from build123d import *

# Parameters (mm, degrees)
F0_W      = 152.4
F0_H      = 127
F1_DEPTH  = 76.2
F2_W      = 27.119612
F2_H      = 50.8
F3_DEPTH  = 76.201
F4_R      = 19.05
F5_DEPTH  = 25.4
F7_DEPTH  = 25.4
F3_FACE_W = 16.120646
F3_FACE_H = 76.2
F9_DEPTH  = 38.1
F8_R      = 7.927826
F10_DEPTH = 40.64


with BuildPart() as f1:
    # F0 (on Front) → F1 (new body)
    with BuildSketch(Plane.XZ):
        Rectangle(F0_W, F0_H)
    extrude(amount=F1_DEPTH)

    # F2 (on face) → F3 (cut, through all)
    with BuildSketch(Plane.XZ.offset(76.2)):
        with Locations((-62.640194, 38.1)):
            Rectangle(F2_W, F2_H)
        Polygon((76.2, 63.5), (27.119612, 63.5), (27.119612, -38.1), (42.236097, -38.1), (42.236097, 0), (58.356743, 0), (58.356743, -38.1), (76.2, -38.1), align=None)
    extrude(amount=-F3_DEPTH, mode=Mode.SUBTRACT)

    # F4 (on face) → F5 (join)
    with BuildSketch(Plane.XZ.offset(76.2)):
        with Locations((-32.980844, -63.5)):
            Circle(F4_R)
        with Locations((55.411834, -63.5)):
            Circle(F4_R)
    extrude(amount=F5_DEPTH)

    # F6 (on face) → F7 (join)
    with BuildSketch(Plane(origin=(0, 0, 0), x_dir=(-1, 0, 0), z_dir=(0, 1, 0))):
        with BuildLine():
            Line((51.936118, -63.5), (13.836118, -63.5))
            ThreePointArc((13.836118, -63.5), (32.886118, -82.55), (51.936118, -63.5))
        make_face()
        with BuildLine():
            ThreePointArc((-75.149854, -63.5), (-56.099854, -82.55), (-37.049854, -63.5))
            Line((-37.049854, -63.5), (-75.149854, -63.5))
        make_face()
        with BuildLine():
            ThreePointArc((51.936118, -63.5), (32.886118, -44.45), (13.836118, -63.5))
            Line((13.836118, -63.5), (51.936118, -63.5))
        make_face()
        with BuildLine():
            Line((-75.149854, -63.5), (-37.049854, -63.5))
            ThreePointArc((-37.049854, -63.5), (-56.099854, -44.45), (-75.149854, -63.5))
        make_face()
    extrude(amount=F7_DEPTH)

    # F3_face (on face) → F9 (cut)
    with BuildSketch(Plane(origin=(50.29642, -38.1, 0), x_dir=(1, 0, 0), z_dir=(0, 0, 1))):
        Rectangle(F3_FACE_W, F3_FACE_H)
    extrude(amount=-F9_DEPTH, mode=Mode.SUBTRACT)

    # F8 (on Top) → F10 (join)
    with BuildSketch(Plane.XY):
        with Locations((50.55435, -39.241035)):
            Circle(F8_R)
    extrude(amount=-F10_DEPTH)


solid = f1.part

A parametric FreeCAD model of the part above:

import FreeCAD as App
import Part
import Sketcher
from FreeCAD import Vector
Q = App.Units.Quantity


def add_polygon(sketch, points):
    """Adds a closed chain of lines whose ends are joined by coincident constraints."""
    first, n = sketch.GeometryCount, len(points)
    for a, b in zip(points, points[1:] + points[:1]):
        sketch.addGeometry(Part.LineSegment(App.Vector(*a, 0), App.Vector(*b, 0)), False)
    for i in range(n):
        sketch.addConstraint(Sketcher.Constraint("Coincident", first + i, 2, first + (i + 1) % n, 1))

doc = App.newDocument("Part")
params = doc.addObject("Spreadsheet::Sheet", "Params")
for row, (alias, value) in enumerate([
    ("sketch1_width", "6 in"),
    ("sketch1_height", "5 in"),
    ("pad1_length", "3 in"),
    ("sketch2_height", "2 in"),
    ("sketch2_height2", "4 in"),
    ("sketch2_height3", "1.5 in"),
    ("sketch3_diameter", "1.5 in"),
    ("pad2_length", "1 in"),
    ("sketch4_diameter", "1.5 in"),
    ("pad3_length", "1 in"),
    ("sketch5_height", "3 in"),
    ("pocket2_length", "1.5 in"),
    ("pad4_length", "1.6 in"),
], start=1):
    params.set(f"A{row}", alias)
    params.set(f"B{row}", "=" + value)
    params.setAlias(f"B{row}", alias)

body = doc.addObject("PartDesign::Body", "Body")

sketch1 = body.newObject("Sketcher::SketchObject", "Sketch")
sketch1.AttachmentSupport = (doc.getObject("XZ_Plane"), [""])
sketch1.MapMode = "FlatFace"
add_polygon(sketch1, [(-76, 64), (-76, -64), (76, -64), (76, 64)])
sketch1.addConstraint(Sketcher.Constraint("Vertical", 0))
sketch1.addConstraint(Sketcher.Constraint("Horizontal", 1))
sketch1.addConstraint(Sketcher.Constraint("Vertical", 2))
sketch1.addConstraint(Sketcher.Constraint("Horizontal", 3))
sketch1.addConstraint(Sketcher.Constraint("Symmetric", 0, 2, 2, 2, -1, 1))
sketch1.addConstraint(Sketcher.Constraint("DistanceX", 1, 1, 1, 2, Q("6 in")))
sketch1.addConstraint(Sketcher.Constraint("DistanceY", 0, 2, 0, 1, Q("5 in")))
sketch1.setExpression("Constraints[9]", "Params.sketch1_width")
sketch1.setExpression("Constraints[10]", "Params.sketch1_height")
pad1 = body.newObject("PartDesign::Pad", "Pad")
pad1.Profile = sketch1
pad1.setExpression("Length", "Params.pad1_length")

sketch2 = body.newObject("Sketcher::SketchObject", "Sketch001")
sketch2.AttachmentSupport = (doc.getObject("XZ_Plane"), [""])
sketch2.MapMode = "FlatFace"
sketch2.AttachmentOffset = App.Placement(Vector(0, 0, 3 * 25.4), App.Rotation())
add_polygon(sketch2, [(-76, 64), (-76, 13), (-49, 13), (-49, 64)])
add_polygon(sketch2, [(76, 64), (27, 64), (27, -38), (42, -38), (42, 0), (58, 0), (58, -38), (76, -38)])
sketch2.addConstraint(Sketcher.Constraint("Vertical", 0))
sketch2.addConstraint(Sketcher.Constraint("Horizontal", 1))
sketch2.addConstraint(Sketcher.Constraint("Vertical", 2))
sketch2.addConstraint(Sketcher.Constraint("Horizontal", 3))
sketch2.addConstraint(Sketcher.Constraint("Horizontal", 4))
sketch2.addConstraint(Sketcher.Constraint("Vertical", 5))
sketch2.addConstraint(Sketcher.Constraint("Horizontal", 6))
sketch2.addConstraint(Sketcher.Constraint("Vertical", 7))
sketch2.addConstraint(Sketcher.Constraint("Horizontal", 8))
sketch2.addConstraint(Sketcher.Constraint("Vertical", 9))
sketch2.addConstraint(Sketcher.Constraint("Horizontal", 10))
sketch2.addConstraint(Sketcher.Constraint("Vertical", 11))
sketch2.addConstraint(Sketcher.Constraint("Symmetric", 3, 2, 11, 2, -2))
sketch2.addConstraint(Sketcher.Constraint("PointOnObject", 7, 2, -1))
sketch2.addConstraint(Sketcher.Constraint("Horizontal", 6, 2, 9, 2))
sketch2.addConstraint(Sketcher.Constraint("DistanceY", 0, 2, 0, 1, Q("2 in")))
sketch2.addConstraint(Sketcher.Constraint("DistanceY", 5, 2, 5, 1, Q("4 in")))
sketch2.addConstraint(Sketcher.Constraint("DistanceY", 7, 1, 7, 2, Q("1.5 in")))
sketch2.addConstraint(Sketcher.Constraint("DistanceX", 0, 2, -1, 1, Q("3 in")))
sketch2.addConstraint(Sketcher.Constraint("DistanceX", 2, 2, 4, 2, Q("3 in")))
sketch2.addConstraint(Sketcher.Constraint("DistanceX", 1, 1, 1, 2, 27.119612))
sketch2.addConstraint(Sketcher.Constraint("DistanceX", 6, 1, 6, 2, 15.116485))
sketch2.addConstraint(Sketcher.Constraint("DistanceX", 8, 1, 8, 2, 16.120646))
sketch2.setExpression("Constraints[27]", "Params.sketch2_height")
sketch2.setExpression("Constraints[28]", "Params.sketch2_height2")
sketch2.setExpression("Constraints[29]", "Params.sketch2_height3")
pocket1 = body.newObject("PartDesign::Pocket", "Pocket")
pocket1.Profile = sketch2
pocket1.Type = "ThroughAll"

sketch3 = body.newObject("Sketcher::SketchObject", "Sketch002")
sketch3.AttachmentSupport = (doc.getObject("XZ_Plane"), [""])
sketch3.MapMode = "FlatFace"
sketch3.AttachmentOffset = App.Placement(Vector(0, 0, 3 * 25.4), App.Rotation())
sketch3.addGeometry(Part.Circle(Vector(-33, -64, 0), Vector(0, 0, 1), 19), False)
sketch3.addGeometry(Part.Circle(Vector(55, -64, 0), Vector(0, 0, 1), 19), False)
sketch3.addConstraint(Sketcher.Constraint("Equal", 0, 1))
sketch3.addConstraint(Sketcher.Constraint("Horizontal", 0, 3, 1, 3))
sketch3.addConstraint(Sketcher.Constraint("Diameter", 0, Q("1.5 in")))
sketch3.addConstraint(Sketcher.Constraint("DistanceY", 0, 3, -1, 1, Q("2.5 in")))
sketch3.addConstraint(Sketcher.Constraint("DistanceX", 0, 3, -1, 1, 32.980844))
sketch3.addConstraint(Sketcher.Constraint("DistanceX", -1, 1, 1, 3, 55.411834))
sketch3.setExpression("Constraints[2]", "Params.sketch3_diameter")
pad2 = body.newObject("PartDesign::Pad", "Pad001")
pad2.Profile = sketch3
pad2.setExpression("Length", "Params.pad2_length")

sketch4 = body.newObject("Sketcher::SketchObject", "Sketch003")
sketch4.AttachmentSupport = (doc.getObject("XZ_Plane"), [""])
sketch4.MapMode = "FlatFace"
sketch4.addGeometry(Part.Circle(Vector(-33, -64, 0), Vector(0, 0, 1), 19), False)
sketch4.addGeometry(Part.Circle(Vector(56, -64, 0), Vector(0, 0, 1), 19), False)
sketch4.addConstraint(Sketcher.Constraint("Equal", 0, 1))
sketch4.addConstraint(Sketcher.Constraint("Horizontal", 0, 3, 1, 3))
sketch4.addConstraint(Sketcher.Constraint("Diameter", 0, Q("1.5 in")))
sketch4.addConstraint(Sketcher.Constraint("DistanceY", 0, 3, -1, 1, Q("2.5 in")))
sketch4.addConstraint(Sketcher.Constraint("DistanceX", 0, 3, -1, 1, 32.886118))
sketch4.addConstraint(Sketcher.Constraint("DistanceX", -1, 1, 1, 3, 56.099854))
sketch4.setExpression("Constraints[2]", "Params.sketch4_diameter")
pad3 = body.newObject("PartDesign::Pad", "Pad002")
pad3.Profile = sketch4
pad3.setExpression("Length", "Params.pad3_length")
pad3.Reversed = True

sketch5 = body.newObject("Sketcher::SketchObject", "Sketch004")
sketch5.AttachmentSupport = (doc.getObject("XY_Plane"), [""])
sketch5.MapMode = "FlatFace"
add_polygon(sketch5, [(42, 0), (42, -76), (58, -76), (58, 0)])
sketch5.addConstraint(Sketcher.Constraint("Vertical", 0))
sketch5.addConstraint(Sketcher.Constraint("Horizontal", 1))
sketch5.addConstraint(Sketcher.Constraint("Vertical", 2))
sketch5.addConstraint(Sketcher.Constraint("Horizontal", 3))
sketch5.addConstraint(Sketcher.Constraint("PointOnObject", 2, 2, -1))
sketch5.addConstraint(Sketcher.Constraint("DistanceY", 0, 2, 0, 1, Q("3 in")))
sketch5.addConstraint(Sketcher.Constraint("DistanceX", 1, 1, 1, 2, 16.120646))
sketch5.addConstraint(Sketcher.Constraint("DistanceX", -1, 1, 0, 2, 42.236097))
sketch5.setExpression("Constraints[9]", "Params.sketch5_height")
pocket2 = body.newObject("PartDesign::Pocket", "Pocket001")
pocket2.Profile = sketch5
pocket2.setExpression("Length", "Params.pocket2_length")

sketch6 = body.newObject("Sketcher::SketchObject", "Sketch005")
sketch6.AttachmentSupport = (doc.getObject("XY_Plane"), [""])
sketch6.MapMode = "FlatFace"
sketch6.addGeometry(Part.Circle(Vector(51, -39, 0), Vector(0, 0, 1), 8), False)
sketch6.addConstraint(Sketcher.Constraint("Diameter", 0, 15.855652))
sketch6.addConstraint(Sketcher.Constraint("DistanceX", -1, 1, 0, 3, 50.55435))
sketch6.addConstraint(Sketcher.Constraint("DistanceY", 0, 3, -1, 1, 39.241035))
pad4 = body.newObject("PartDesign::Pad", "Pad003")
pad4.Profile = sketch6
pad4.setExpression("Length", "Params.pad4_length")
pad4.Reversed = True

doc.recompute()
